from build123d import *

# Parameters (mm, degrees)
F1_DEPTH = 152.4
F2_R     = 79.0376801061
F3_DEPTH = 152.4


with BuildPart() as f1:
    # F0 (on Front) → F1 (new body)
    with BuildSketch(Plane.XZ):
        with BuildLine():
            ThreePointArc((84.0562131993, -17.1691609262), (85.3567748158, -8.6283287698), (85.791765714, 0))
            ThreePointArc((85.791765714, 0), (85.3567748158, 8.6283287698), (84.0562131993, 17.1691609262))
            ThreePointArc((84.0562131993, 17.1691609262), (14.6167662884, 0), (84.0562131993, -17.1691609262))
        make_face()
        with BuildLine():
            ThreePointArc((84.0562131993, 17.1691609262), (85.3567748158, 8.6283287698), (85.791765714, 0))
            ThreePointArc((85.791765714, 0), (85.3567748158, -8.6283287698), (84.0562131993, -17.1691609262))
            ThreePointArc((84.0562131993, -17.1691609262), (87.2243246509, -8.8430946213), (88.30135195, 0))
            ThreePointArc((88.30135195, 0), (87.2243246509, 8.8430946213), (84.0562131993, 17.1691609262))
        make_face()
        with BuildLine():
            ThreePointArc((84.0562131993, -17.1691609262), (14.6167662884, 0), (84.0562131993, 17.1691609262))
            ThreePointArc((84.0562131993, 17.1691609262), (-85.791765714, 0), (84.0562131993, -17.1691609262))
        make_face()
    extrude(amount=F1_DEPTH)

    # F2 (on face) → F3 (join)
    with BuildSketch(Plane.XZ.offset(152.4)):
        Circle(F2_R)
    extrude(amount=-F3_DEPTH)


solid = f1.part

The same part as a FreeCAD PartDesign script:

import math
import FreeCAD as App
import Part
import Sketcher

V = App.Vector
Q = App.Units.Quantity

doc = App.newDocument("Part")
params = doc.addObject("Spreadsheet::Sheet", "Params")
for row, (alias, value) in enumerate([
    ("pad1_length", "6 in"),
    ("pad2_length", "6 in"),
], start=1):
    params.set(f"A{row}", alias)
    params.set(f"B{row}", "=" + value)
    params.setAlias(f"B{row}", alias)

body = doc.addObject("PartDesign::Body", "Body")

# Sketch on XZ plane
sketch1 = body.newObject("Sketcher::SketchObject", "Sketch")
sketch1.AttachmentSupport = (doc.getObject("XZ_Plane"), [""])
sketch1.MapMode = "FlatFace"
sketch1.addGeometry([
    Part.ArcOfCircle(Part.Circle(V(51.459059, 0, 0), V(0, 0, 1), 36.842293), math.radians(-27.776106), math.radians(0)),
    Part.ArcOfCircle(Part.Circle(V(51.459059, 0, 0), V(0, 0, 1), 36.842293), math.radians(0), math.radians(27.776106)),
    Part.ArcOfCircle(Part.Circle(V(0, 0, 0), V(0, 0, 1), 85.791766), math.radians(11.544326), math.radians(348.455674)),
], False)
sketch1.addConstraint([
    Sketcher.Constraint("Tangent", 0, 2, 1, 1),
    Sketcher.Constraint("Coincident", 1, 2, 2, 1),
    Sketcher.Constraint("Coincident", 2, 2, 0, 1),
    Sketcher.Constraint("Coincident", 2, 3, -1, 1),
    Sketcher.Constraint("Equal", 0, 1),
    Sketcher.Constraint("PointOnObject", 0, 3, -1),
    Sketcher.Constraint("PointOnObject", 0, 2, -1),
    Sketcher.Constraint("Radius", 0, Q("36.842293 mm")),
    Sketcher.Constraint("Radius", 2, Q("85.791766 mm")),
    Sketcher.Constraint("DistanceX", -1, 1, 0, 3, Q("51.459059 mm")),
])
pad1 = body.newObject("PartDesign::Pad", "Pad")
pad1.Profile = sketch1
pad1.setExpression("Length", "Params.pad1_length")

# Sketch on XZ plane
sketch2 = body.newObject("Sketcher::SketchObject", "Sketch001")
sketch2.AttachmentSupport = (doc.getObject("XZ_Plane"), [""])
sketch2.MapMode = "FlatFace"
sketch2.AttachmentOffset = App.Placement(V(0, 0, 6 * 25.4), App.Rotation())
sketch2.addGeometry(Part.Circle(V(0, 0, 0), V(0, 0, 1), 79.03768), False)
sketch2.addConstraint([
    Sketcher.Constraint("Coincident", 0, 3, -1, 1),
    Sketcher.Constraint("Diameter", 0, Q("158.07536 mm")),
])
pad2 = body.newObject("PartDesign::Pad", "Pad001")
pad2.Profile = sketch2
pad2.setExpression("Length", "Params.pad2_length")
pad2.Reversed = True

doc.recompute()
